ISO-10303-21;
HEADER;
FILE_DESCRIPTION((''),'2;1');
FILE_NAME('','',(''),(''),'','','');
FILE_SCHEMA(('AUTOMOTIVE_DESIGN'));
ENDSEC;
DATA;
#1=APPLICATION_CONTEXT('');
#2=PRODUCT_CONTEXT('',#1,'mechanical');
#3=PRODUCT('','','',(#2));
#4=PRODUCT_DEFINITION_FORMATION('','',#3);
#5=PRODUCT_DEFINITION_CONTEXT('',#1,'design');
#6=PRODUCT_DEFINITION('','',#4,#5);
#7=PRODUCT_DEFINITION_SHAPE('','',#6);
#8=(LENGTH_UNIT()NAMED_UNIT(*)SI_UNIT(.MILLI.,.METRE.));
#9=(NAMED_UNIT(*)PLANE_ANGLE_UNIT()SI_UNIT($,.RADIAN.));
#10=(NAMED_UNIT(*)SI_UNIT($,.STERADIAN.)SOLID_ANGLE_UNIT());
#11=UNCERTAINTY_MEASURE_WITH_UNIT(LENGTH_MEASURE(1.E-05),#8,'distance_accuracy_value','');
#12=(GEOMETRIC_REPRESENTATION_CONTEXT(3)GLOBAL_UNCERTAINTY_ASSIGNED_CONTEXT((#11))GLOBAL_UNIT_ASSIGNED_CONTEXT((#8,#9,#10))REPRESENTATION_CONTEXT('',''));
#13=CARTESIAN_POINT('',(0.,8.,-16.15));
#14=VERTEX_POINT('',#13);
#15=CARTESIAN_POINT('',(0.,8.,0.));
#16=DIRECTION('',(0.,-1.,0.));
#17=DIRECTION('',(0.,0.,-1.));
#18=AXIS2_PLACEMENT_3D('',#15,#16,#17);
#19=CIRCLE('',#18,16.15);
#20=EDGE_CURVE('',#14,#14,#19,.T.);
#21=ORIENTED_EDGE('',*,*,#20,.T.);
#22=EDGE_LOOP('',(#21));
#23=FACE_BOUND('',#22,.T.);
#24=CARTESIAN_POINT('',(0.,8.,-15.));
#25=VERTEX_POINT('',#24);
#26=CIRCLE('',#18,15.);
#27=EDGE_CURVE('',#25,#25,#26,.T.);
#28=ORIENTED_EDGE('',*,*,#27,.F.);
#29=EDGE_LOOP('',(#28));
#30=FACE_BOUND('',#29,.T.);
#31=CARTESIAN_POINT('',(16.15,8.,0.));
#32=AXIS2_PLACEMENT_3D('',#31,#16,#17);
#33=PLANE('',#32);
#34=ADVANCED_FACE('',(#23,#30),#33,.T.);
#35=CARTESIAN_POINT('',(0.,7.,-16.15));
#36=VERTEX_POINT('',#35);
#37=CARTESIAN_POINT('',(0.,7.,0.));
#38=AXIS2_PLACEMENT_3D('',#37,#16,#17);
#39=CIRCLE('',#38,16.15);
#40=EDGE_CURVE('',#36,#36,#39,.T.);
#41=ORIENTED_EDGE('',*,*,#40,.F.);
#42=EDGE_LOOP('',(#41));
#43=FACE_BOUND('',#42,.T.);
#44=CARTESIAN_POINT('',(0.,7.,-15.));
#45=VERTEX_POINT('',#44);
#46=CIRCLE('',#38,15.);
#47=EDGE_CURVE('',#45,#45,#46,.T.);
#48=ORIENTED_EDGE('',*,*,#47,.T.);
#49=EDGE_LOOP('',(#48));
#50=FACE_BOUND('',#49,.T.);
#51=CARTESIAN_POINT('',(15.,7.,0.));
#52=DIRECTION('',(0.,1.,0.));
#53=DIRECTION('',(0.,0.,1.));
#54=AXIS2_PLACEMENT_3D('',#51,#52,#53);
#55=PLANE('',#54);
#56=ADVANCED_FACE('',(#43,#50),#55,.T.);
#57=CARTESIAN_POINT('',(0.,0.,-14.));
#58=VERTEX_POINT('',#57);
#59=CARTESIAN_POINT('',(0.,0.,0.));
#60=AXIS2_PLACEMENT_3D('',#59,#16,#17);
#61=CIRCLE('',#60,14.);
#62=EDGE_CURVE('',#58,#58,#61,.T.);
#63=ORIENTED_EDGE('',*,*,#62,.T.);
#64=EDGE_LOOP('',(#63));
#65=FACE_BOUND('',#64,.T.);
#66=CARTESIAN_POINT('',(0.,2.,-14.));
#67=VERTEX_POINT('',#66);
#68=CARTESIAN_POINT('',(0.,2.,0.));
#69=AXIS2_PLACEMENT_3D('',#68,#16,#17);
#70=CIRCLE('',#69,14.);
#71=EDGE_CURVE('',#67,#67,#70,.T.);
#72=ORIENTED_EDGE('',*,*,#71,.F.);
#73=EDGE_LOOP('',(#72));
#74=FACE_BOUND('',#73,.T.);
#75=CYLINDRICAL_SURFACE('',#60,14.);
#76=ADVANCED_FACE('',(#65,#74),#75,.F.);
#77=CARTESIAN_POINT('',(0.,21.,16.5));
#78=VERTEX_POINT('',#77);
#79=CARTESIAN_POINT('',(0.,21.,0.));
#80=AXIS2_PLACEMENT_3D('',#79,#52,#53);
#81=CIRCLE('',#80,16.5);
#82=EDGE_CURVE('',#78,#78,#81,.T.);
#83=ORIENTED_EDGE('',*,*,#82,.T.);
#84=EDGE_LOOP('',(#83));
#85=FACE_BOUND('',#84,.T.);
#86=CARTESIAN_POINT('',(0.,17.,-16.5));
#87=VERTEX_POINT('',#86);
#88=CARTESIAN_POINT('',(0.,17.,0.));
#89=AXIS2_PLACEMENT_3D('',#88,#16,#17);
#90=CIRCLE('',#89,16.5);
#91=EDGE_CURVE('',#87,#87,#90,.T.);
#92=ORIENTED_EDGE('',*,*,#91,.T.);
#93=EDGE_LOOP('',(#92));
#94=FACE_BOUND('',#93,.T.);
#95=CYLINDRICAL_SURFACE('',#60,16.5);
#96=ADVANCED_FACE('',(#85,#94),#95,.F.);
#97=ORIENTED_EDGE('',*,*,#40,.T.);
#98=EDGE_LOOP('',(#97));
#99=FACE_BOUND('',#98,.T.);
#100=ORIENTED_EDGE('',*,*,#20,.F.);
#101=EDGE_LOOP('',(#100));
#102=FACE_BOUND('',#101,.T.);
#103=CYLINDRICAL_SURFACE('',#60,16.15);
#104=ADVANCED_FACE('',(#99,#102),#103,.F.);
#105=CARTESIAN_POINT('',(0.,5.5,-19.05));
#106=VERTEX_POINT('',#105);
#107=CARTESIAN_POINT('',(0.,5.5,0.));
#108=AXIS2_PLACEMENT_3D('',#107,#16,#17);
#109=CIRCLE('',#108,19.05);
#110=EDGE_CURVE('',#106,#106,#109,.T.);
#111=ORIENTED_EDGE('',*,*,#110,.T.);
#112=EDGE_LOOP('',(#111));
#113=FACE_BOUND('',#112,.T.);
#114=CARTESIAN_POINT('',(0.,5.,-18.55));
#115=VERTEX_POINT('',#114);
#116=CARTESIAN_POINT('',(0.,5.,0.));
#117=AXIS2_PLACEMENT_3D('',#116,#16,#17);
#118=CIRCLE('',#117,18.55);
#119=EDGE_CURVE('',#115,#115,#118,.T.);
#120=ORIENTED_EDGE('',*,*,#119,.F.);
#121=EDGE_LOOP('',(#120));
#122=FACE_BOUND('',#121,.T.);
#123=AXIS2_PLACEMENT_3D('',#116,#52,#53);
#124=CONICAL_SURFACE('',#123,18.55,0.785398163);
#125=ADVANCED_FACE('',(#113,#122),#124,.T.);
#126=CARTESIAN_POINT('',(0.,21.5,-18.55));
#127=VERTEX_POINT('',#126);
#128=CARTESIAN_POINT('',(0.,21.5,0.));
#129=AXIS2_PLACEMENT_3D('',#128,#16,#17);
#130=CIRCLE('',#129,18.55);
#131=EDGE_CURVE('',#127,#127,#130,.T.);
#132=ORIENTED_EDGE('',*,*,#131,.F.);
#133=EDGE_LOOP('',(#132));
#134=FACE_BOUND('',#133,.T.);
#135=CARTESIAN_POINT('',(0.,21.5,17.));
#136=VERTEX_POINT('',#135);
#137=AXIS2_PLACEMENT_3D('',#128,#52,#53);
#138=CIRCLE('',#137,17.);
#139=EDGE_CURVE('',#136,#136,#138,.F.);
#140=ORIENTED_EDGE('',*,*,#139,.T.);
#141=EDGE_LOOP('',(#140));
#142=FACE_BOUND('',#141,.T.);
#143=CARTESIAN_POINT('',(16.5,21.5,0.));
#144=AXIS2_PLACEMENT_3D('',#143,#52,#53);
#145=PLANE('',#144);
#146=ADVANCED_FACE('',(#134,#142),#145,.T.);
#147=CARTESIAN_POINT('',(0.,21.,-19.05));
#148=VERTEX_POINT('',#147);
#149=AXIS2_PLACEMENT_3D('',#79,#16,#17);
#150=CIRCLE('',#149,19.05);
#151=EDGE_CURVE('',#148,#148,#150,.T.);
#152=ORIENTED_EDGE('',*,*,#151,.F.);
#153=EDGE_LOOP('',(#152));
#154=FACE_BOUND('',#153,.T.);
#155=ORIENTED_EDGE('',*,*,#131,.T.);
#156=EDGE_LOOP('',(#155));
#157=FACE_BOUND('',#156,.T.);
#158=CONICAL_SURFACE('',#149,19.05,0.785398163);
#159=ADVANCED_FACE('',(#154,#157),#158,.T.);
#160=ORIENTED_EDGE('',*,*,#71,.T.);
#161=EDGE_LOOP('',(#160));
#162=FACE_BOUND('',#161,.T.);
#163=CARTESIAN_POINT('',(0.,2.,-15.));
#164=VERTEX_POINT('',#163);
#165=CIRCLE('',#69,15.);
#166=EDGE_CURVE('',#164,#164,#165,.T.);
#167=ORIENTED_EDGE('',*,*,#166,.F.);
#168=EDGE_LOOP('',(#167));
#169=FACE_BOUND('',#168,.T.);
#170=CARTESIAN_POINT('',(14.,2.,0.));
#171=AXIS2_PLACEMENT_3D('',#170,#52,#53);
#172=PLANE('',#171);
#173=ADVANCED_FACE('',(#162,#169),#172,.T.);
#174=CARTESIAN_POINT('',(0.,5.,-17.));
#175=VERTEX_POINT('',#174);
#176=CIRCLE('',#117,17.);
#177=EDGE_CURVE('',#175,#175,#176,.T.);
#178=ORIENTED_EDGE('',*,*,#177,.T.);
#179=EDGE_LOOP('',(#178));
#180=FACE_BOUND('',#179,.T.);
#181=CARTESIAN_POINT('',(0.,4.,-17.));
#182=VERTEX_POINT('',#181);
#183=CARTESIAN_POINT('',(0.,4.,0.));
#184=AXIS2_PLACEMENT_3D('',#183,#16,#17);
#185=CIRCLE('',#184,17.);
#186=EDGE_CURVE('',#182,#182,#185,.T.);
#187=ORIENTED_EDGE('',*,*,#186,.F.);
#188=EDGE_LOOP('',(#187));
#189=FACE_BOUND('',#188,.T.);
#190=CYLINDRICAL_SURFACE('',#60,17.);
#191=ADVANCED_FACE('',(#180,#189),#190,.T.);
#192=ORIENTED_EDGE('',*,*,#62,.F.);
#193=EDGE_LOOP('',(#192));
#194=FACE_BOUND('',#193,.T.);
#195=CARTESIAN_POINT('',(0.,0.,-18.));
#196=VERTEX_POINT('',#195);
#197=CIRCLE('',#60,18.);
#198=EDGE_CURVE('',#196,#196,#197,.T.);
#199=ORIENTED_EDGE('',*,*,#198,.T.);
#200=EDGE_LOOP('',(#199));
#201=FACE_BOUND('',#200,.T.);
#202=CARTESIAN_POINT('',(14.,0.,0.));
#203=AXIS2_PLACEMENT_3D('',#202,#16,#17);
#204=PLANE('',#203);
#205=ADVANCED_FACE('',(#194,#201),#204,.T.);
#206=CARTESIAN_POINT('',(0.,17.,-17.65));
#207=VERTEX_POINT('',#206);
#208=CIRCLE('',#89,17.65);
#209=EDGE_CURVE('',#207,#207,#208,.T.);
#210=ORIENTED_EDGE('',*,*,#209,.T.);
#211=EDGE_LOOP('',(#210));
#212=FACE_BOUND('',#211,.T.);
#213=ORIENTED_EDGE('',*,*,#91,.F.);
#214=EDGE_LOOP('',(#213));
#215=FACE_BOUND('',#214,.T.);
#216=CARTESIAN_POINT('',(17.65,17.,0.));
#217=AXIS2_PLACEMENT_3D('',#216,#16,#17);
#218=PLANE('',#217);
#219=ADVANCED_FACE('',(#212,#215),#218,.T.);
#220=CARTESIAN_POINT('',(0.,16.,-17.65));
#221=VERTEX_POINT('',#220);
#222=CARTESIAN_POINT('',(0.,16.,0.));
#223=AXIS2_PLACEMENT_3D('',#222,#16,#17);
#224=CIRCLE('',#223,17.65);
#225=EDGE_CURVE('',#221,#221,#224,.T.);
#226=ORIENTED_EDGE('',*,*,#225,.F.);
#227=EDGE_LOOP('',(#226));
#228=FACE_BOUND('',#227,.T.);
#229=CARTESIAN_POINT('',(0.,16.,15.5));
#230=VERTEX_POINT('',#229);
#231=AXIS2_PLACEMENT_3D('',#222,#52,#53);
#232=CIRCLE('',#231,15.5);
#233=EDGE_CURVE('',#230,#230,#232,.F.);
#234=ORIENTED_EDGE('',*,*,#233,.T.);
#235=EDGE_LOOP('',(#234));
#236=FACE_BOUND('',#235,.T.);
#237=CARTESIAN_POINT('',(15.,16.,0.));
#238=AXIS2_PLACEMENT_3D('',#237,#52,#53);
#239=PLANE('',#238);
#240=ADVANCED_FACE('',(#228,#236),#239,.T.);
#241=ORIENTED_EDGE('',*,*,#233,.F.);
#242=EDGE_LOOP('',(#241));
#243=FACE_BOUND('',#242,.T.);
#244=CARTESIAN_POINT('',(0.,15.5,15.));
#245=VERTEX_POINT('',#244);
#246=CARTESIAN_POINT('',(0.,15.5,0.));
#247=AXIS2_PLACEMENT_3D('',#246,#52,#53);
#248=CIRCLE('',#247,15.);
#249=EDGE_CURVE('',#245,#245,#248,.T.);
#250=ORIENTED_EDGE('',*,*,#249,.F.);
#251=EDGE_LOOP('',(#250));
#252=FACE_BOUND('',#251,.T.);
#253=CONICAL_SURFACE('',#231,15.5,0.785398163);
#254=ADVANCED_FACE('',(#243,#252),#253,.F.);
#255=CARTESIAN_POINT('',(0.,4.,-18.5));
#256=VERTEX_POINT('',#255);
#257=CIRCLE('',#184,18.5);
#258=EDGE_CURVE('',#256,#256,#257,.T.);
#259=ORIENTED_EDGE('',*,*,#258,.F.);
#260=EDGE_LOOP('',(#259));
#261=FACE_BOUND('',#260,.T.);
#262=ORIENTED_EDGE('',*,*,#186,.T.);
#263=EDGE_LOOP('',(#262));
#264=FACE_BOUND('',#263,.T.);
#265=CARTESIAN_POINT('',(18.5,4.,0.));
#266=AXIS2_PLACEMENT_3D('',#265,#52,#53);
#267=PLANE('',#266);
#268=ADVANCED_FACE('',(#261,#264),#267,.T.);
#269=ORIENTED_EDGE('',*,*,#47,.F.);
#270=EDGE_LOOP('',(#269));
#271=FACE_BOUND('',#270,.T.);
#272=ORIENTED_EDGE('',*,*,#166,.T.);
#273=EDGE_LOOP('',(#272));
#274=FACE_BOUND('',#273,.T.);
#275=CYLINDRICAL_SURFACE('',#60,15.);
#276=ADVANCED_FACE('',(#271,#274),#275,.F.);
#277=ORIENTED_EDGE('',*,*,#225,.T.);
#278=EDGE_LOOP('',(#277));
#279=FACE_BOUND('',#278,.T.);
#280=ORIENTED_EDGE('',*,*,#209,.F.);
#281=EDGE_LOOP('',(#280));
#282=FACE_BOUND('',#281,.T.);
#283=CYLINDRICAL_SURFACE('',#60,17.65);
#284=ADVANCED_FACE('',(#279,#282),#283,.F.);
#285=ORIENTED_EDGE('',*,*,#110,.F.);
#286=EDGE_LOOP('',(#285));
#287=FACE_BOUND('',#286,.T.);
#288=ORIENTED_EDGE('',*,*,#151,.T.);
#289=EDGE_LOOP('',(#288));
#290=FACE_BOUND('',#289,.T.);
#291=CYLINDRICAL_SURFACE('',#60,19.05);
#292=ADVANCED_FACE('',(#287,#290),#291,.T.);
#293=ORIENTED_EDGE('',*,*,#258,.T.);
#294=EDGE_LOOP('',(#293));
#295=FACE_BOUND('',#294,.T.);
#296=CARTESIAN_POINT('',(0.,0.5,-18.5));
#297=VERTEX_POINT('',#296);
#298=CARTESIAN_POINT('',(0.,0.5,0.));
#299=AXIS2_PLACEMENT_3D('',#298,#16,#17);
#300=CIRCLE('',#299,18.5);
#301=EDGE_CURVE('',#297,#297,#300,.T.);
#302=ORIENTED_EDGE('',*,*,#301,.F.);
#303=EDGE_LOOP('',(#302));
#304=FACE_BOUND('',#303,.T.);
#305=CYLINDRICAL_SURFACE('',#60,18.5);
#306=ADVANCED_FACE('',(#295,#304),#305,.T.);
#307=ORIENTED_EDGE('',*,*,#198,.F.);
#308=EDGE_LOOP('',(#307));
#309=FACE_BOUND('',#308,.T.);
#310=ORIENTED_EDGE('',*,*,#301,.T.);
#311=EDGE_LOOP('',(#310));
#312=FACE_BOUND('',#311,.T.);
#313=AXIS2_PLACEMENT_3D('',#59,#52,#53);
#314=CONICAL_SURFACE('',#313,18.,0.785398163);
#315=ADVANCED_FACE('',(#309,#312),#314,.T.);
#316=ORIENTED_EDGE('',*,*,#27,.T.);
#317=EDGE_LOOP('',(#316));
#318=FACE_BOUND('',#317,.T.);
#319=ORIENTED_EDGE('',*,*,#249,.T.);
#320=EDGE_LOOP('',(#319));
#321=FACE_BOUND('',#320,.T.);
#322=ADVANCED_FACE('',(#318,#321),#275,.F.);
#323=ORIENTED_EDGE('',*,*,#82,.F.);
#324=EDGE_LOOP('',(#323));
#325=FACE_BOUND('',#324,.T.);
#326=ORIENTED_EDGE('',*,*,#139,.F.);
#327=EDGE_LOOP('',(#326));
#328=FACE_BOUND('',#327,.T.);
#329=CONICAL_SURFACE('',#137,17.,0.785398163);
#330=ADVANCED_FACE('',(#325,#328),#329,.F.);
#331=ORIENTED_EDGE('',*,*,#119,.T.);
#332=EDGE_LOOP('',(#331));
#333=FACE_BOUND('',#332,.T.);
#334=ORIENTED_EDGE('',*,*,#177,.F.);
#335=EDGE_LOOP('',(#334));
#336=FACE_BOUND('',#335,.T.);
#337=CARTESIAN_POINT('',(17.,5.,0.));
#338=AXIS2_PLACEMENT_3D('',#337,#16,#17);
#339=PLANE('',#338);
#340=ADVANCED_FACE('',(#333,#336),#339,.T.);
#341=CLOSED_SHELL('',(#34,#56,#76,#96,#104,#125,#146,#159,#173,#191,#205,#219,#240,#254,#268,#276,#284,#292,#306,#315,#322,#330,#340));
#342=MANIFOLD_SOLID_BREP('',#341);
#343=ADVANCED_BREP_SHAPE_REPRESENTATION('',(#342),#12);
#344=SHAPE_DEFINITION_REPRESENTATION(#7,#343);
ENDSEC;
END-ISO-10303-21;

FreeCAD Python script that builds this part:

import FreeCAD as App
import Part
import Sketcher

V = App.Vector


def edges_at(feature, points):
    """Names of the edges that pass closest to the given points."""
    edges = feature.Shape.Edges
    near = lambda p: min(range(len(edges)), key=lambda i: edges[i].distToShape(Part.Vertex(*p))[0])
    return sorted({f"Edge{near(p) + 1}" for p in points})


def add_polygon(sketch, points):
    """Adds a closed chain of lines whose ends are joined by coincident constraints."""
    first, n = sketch.GeometryCount, len(points)
    for a, b in zip(points, points[1:] + points[:1]):
        sketch.addGeometry(Part.LineSegment(App.Vector(*a, 0), App.Vector(*b, 0)), False)
    for i in range(n):
        sketch.addConstraint(Sketcher.Constraint("Coincident", first + i, 2, first + (i + 1) % n, 1))

doc = App.newDocument("Part")
params = doc.addObject("Spreadsheet::Sheet", "Params")
for row, (alias, value) in enumerate([
    ("sketch1_width", "4 mm"),
    ("sketch1_width2", "1 mm"),
    ("sketch1_height", "2 mm"),
    ("sketch1_height2", "8 mm"),
    ("sketch1_height3", "5 mm"),
    ("revolution_angle", "360 deg"),
    ("chamfer_size", "0.5 mm"),
], start=1):
    params.set(f"A{row}", alias)
    params.set(f"B{row}", "=" + value)
    params.setAlias(f"B{row}", alias)

body = doc.addObject("PartDesign::Body", "Body")

# Sketch on XY plane
sketch1 = body.newObject("Sketcher::SketchObject", "Sketch")
sketch1.AttachmentSupport = (doc.getObject("XY_Plane"), [""])
sketch1.MapMode = "FlatFace"
add_polygon(sketch1, [(14, 2), (14, 0), (18, 0), (18.5, 0.5), (18.5, 4), (17, 4), (17, 5), (18.55, 5), (19.05, 5.5), (19.05, 21), (18.55, 21.5), (16.5, 21.5), (16.5, 17), (17.65, 17), (17.65, 16), (15, 16), (15, 8), (16.15, 8), (16.15, 7), (15, 7), (15, 2)])  # lines 0-20
sketch1.addConstraint([
    Sketcher.Constraint("Vertical", 0),
    Sketcher.Constraint("Horizontal", 1),
    Sketcher.Constraint("Vertical", 3),
    Sketcher.Constraint("Horizontal", 4),
    Sketcher.Constraint("Vertical", 5),
    Sketcher.Constraint("Horizontal", 6),
    Sketcher.Constraint("Vertical", 8),
    Sketcher.Constraint("Horizontal", 10),
    Sketcher.Constraint("Vertical", 11),
    Sketcher.Constraint("Horizontal", 12),
    Sketcher.Constraint("Vertical", 13),
    Sketcher.Constraint("Horizontal", 14),
    Sketcher.Constraint("Vertical", 15),
    Sketcher.Constraint("Horizontal", 16),
    Sketcher.Constraint("Vertical", 17),
    Sketcher.Constraint("Horizontal", 18),
    Sketcher.Constraint("Vertical", 19),
    Sketcher.Constraint("Horizontal", 20),
    Sketcher.Constraint("PointOnObject", 0, 2, -1),
    Sketcher.Constraint("Parallel", 2, 7),
    Sketcher.Constraint("Perpendicular", 7, 9),
    Sketcher.Constraint("Vertical", 6, 2, 9, 2),
    Sketcher.Constraint("Vertical", 15, 2, 18, 2),
    Sketcher.Constraint("Equal", 12, 16),
    Sketcher.Constraint("Equal", 20, 5),
    Sketcher.Constraint("Equal", 5, 13),
    Sketcher.Constraint("Equal", 13, 17),
    Sketcher.Constraint("Equal", 2, 7),
    Sketcher.Constraint("Equal", 7, 9),
    Sketcher.Constraint("DistanceX", 1, 1, 1, 2, 4.0),
    Sketcher.Constraint("DistanceX", 20, 2, 20, 1, 1.0),
    Sketcher.Constraint("DistanceY", 0, 2, 0, 1, 2.0),
    Sketcher.Constraint("DistanceY", 15, 2, 15, 1, 8.0),
    Sketcher.Constraint("DistanceY", 19, 2, 19, 1, 5.0),
    Sketcher.Constraint("DistanceX", 4, 2, 4, 1, 1.5),
    Sketcher.Constraint("DistanceY", 3, 1, 3, 2, 3.5),
    Sketcher.Constraint("DistanceY", 8, 1, 8, 2, 15.5),
    Sketcher.Constraint("DistanceY", 11, 2, 11, 1, 4.5),
    Sketcher.Constraint("DistanceX", -1, 1, 0, 2, 14.0),
    Sketcher.Constraint("DistanceX", 6, 1, 6, 2, 1.55),
    Sketcher.Constraint("DistanceX", 10, 2, 10, 1, 2.05),
    Sketcher.Constraint("DistanceX", 12, 1, 12, 2, 1.15),
])
sketch1.setExpression("Constraints[50]", "Params.sketch1_width")
sketch1.setExpression("Constraints[51]", "Params.sketch1_width2")
sketch1.setExpression("Constraints[52]", "Params.sketch1_height")
sketch1.setExpression("Constraints[53]", "Params.sketch1_height2")
sketch1.setExpression("Constraints[54]", "Params.sketch1_height3")
revolution = body.newObject("PartDesign::Revolution", "Revolution")
revolution.Profile = sketch1
revolution.ReferenceAxis = (sketch1, ["V_Axis"])
revolution.setExpression("Angle", "Params.revolution_angle")
doc.recompute()

chamfer = body.newObject("PartDesign::Chamfer", "Chamfer")
chamfer.Base = (revolution, edges_at(revolution, [(0, 16, 15), (0, 21.5, 16.5)]))
chamfer.setExpression("Size", "Params.chamfer_size")

doc.recompute()
